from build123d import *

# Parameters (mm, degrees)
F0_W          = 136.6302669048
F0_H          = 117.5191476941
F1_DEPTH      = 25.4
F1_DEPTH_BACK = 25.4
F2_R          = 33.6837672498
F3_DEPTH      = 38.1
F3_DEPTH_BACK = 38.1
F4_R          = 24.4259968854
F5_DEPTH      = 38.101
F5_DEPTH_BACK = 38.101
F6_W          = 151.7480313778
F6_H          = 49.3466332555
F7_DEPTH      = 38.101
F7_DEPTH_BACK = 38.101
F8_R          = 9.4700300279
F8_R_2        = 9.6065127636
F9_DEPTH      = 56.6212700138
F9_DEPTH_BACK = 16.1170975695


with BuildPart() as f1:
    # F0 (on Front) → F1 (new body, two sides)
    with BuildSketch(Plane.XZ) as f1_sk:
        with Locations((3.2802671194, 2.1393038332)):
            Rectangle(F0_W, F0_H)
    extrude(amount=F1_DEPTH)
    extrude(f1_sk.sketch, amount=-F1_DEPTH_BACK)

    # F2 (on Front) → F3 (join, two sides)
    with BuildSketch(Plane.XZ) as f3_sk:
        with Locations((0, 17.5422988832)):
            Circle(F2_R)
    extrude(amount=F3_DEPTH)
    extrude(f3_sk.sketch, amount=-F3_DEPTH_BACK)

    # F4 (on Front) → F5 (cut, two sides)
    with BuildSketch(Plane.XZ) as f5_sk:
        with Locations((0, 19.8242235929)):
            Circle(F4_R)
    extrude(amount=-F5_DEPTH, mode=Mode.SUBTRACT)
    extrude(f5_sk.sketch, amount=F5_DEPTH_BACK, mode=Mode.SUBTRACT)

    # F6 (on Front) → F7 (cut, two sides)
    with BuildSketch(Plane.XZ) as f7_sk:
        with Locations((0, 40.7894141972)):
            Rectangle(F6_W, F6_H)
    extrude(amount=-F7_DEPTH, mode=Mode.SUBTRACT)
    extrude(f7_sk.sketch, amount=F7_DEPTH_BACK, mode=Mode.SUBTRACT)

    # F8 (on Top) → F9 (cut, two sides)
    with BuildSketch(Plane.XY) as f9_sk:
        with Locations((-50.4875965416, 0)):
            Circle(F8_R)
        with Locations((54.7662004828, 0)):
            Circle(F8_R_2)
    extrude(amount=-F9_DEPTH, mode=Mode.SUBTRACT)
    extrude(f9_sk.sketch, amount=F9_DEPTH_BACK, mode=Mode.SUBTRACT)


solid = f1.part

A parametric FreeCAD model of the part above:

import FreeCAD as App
import Part
import Sketcher

doc = App.newDocument("Part")
params = doc.addObject("Spreadsheet::Sheet", "Params")
for row, (alias, value) in enumerate([
    ("pad1_length", "1 in"),
    ("pad1_length2", "1 in"),
    ("pad2_length", "1.5 in"),
    ("pad2_length2", "1.5 in"),
], start=1):
    params.set(f"A{row}", alias)
    params.set(f"B{row}", "=" + value)
    params.setAlias(f"B{row}", alias)

body = doc.addObject("PartDesign::Body", "Body")

# Sketch on XZ plane
sketch1 = body.newObject("Sketcher::SketchObject", "Sketch")
sketch1.AttachmentSupport = (doc.getObject("XZ_Plane"), [""])
sketch1.MapMode = "FlatFace"
sketch1.addGeometry(Part.LineSegment(App.Vector(-65, 61, 0), App.Vector(-65, -57, 0)), False)
sketch1.addGeometry(Part.LineSegment(App.Vector(-65, -57, 0), App.Vector(72, -57, 0)), False)
sketch1.addGeometry(Part.LineSegment(App.Vector(72, -57, 0), App.Vector(72, 61, 0)), False)
sketch1.addGeometry(Part.LineSegment(App.Vector(72, 61, 0), App.Vector(-65, 61, 0)), False)
sketch1.addConstraint(Sketcher.Constraint("Coincident", 0, 2, 1, 1))
sketch1.addConstraint(Sketcher.Constraint("Coincident", 1, 2, 2, 1))
sketch1.addConstraint(Sketcher.Constraint("Coincident", 2, 2, 3, 1))
sketch1.addConstraint(Sketcher.Constraint("Coincident", 3, 2, 0, 1))
sketch1.addConstraint(Sketcher.Constraint("Vertical", 0))
sketch1.addConstraint(Sketcher.Constraint("Horizontal", 1))
sketch1.addConstraint(Sketcher.Constraint("Vertical", 2))
sketch1.addConstraint(Sketcher.Constraint("Horizontal", 3))
sketch1.addConstraint(Sketcher.Constraint("DistanceX", -1, 1, 1, 2, 71.595401))
sketch1.addConstraint(Sketcher.Constraint("DistanceX", 1, 1, 1, 2, 136.630267))
sketch1.addConstraint(Sketcher.Constraint("DistanceY", 0, 2, 0, 1, 117.519148))
sketch1.addConstraint(Sketcher.Constraint("DistanceY", 0, 2, -1, 1, 56.62027))
pad1 = body.newObject("PartDesign::Pad", "Pad")
pad1.Profile = sketch1
pad1.Type = "TwoLengths"
pad1.setExpression("Length", "Params.pad1_length")
pad1.setExpression("Length2", "Params.pad1_length2")

# Sketch on XZ plane
sketch2 = body.newObject("Sketcher::SketchObject", "Sketch001")
sketch2.AttachmentSupport = (doc.getObject("XZ_Plane"), [""])
sketch2.MapMode = "FlatFace"
sketch2.addGeometry(Part.Circle(App.Vector(0, 18, 0), App.Vector(0, 0, 1), 34), False)
sketch2.addConstraint(Sketcher.Constraint("PointOnObject", 0, 3, -2))
sketch2.addConstraint(Sketcher.Constraint("Diameter", 0, 67.367535))
sketch2.addConstraint(Sketcher.Constraint("DistanceY", -1, 1, 0, 3, 17.542299))
pad2 = body.newObject("PartDesign::Pad", "Pad001")
pad2.Profile = sketch2
pad2.Type = "TwoLengths"
pad2.setExpression("Length", "Params.pad2_length")
pad2.setExpression("Length2", "Params.pad2_length2")

# Sketch on XZ plane
sketch3 = body.newObject("Sketcher::SketchObject", "Sketch002")
sketch3.AttachmentSupport = (doc.getObject("XZ_Plane"), [""])
sketch3.MapMode = "FlatFace"
sketch3.addGeometry(Part.Circle(App.Vector(0, 20, 0), App.Vector(0, 0, 1), 24), False)
sketch3.addConstraint(Sketcher.Constraint("PointOnObject", 0, 3, -2))
sketch3.addConstraint(Sketcher.Constraint("Diameter", 0, 48.851994))
sketch3.addConstraint(Sketcher.Constraint("DistanceY", -1, 1, 0, 3, 19.824224))
pocket1 = body.newObject("PartDesign::Pocket", "Pocket")
pocket1.Profile = sketch3
pocket1.Type = "ThroughAll"
pocket1.Midplane = True

# Sketch on XZ plane
sketch4 = body.newObject("Sketcher::SketchObject", "Sketch003")
sketch4.AttachmentSupport = (doc.getObject("XZ_Plane"), [""])
sketch4.MapMode = "FlatFace"
sketch4.addGeometry(Part.LineSegment(App.Vector(-76, 65, 0), App.Vector(-76, 16, 0)), False)
sketch4.addGeometry(Part.LineSegment(App.Vector(-76, 16, 0), App.Vector(76, 16, 0)), False)
sketch4.addGeometry(Part.LineSegment(App.Vector(76, 16, 0), App.Vector(76, 65, 0)), False)
sketch4.addGeometry(Part.LineSegment(App.Vector(76, 65, 0), App.Vector(-76, 65, 0)), False)
sketch4.addConstraint(Sketcher.Constraint("Coincident", 0, 2, 1, 1))
sketch4.addConstraint(Sketcher.Constraint("Coincident", 1, 2, 2, 1))
sketch4.addConstraint(Sketcher.Constraint("Coincident", 2, 2, 3, 1))
sketch4.addConstraint(Sketcher.Constraint("Coincident", 3, 2, 0, 1))
sketch4.addConstraint(Sketcher.Constraint("Vertical", 0))
sketch4.addConstraint(Sketcher.Constraint("Horizontal", 1))
sketch4.addConstraint(Sketcher.Constraint("Vertical", 2))
sketch4.addConstraint(Sketcher.Constraint("Horizontal", 3))
sketch4.addConstraint(Sketcher.Constraint("DistanceX", 1, 1, 1, 2, 151.748031))
sketch4.addConstraint(Sketcher.Constraint("DistanceY", 0, 2, 0, 1, 49.346633))
sketch4.addConstraint(Sketcher.Constraint("DistanceY", -1, 1, 2, 2, 65.462731))
sketch4.addConstraint(Sketcher.Constraint("DistanceX", 0, 2, -1, 1, 75.874016))
pocket2 = body.newObject("PartDesign::Pocket", "Pocket001")
pocket2.Profile = sketch4
pocket2.Type = "ThroughAll"
pocket2.Midplane = True

# Sketch on XY plane
sketch5 = body.newObject("Sketcher::SketchObject", "Sketch004")
sketch5.AttachmentSupport = (doc.getObject("XY_Plane"), [""])
sketch5.MapMode = "FlatFace"
sketch5.addGeometry(Part.Circle(App.Vector(-50, 0, 0), App.Vector(0, 0, 1), 9), False)
sketch5.addGeometry(Part.Circle(App.Vector(55, 0, 0), App.Vector(0, 0, 1), 10), False)
sketch5.addConstraint(Sketcher.Constraint("PointOnObject", 0, 3, -1))
sketch5.addConstraint(Sketcher.Constraint("PointOnObject", 1, 3, -1))
sketch5.addConstraint(Sketcher.Constraint("Diameter", 0, 18.94006))
sketch5.addConstraint(Sketcher.Constraint("Diameter", 1, 19.213026))
sketch5.addConstraint(Sketcher.Constraint("DistanceX", -1, 1, 1, 3, 54.7662))
sketch5.addConstraint(Sketcher.Constraint("DistanceX", 0, 3, -1, 1, 50.487597))
pocket3 = body.newObject("PartDesign::Pocket", "Pocket002")
pocket3.Profile = sketch5
pocket3.Type = "ThroughAll"
pocket3.Midplane = True

doc.recompute()
